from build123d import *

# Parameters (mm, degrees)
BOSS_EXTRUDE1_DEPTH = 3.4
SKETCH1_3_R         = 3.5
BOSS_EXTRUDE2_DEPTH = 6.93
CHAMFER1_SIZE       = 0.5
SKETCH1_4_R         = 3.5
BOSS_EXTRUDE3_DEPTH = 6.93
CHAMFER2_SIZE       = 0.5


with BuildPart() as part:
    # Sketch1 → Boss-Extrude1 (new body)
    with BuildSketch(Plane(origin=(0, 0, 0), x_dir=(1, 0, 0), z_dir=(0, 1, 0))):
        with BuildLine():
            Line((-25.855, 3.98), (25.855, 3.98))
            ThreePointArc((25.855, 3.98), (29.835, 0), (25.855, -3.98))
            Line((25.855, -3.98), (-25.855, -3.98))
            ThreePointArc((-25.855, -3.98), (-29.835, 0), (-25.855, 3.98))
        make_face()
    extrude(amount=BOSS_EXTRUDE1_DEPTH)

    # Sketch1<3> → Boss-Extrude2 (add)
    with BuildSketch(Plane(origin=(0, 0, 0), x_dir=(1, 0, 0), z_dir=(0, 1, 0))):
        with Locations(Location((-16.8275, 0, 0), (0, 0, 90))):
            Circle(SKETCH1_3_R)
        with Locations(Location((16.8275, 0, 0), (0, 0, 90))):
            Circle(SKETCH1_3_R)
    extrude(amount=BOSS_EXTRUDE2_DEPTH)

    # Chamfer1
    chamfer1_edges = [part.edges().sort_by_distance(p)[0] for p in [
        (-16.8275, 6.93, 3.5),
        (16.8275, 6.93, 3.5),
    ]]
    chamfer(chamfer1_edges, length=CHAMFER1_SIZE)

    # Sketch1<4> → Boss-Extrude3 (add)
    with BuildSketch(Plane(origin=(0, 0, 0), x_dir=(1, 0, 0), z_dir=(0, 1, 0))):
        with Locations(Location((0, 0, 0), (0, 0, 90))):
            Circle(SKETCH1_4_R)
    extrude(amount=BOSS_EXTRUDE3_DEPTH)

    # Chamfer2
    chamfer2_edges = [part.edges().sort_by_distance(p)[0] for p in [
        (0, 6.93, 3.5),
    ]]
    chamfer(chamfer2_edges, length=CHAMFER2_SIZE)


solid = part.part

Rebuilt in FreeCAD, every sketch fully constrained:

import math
import FreeCAD as App
import Part
import Sketcher
from FreeCAD import Vector
Q = App.Units.Quantity


def edges_at(feature, points):
    """Names of the edges that pass closest to the given points."""
    edges = feature.Shape.Edges
    near = lambda p: min(range(len(edges)), key=lambda i: edges[i].distToShape(Part.Vertex(*p))[0])
    return sorted({f"Edge{near(p) + 1}" for p in points})

doc = App.newDocument("Part")
body = doc.addObject("PartDesign::Body", "Body")

sketch1 = body.newObject("Sketcher::SketchObject", "Sketch")
sketch1.AttachmentSupport = (doc.getObject("XZ_Plane"), [""])
sketch1.MapMode = "FlatFace"
sketch1.addGeometry([
    Part.LineSegment(Vector(25.9, -4, 0), Vector(-25.9, -4, 0)),
    Part.ArcOfCircle(Part.Circle(Vector(-25.9, 0, 0), Vector(0, 0, 1), 4), math.radians(90), math.radians(270)),
    Part.LineSegment(Vector(-25.9, 4, 0), Vector(25.9, 4, 0)),
    Part.ArcOfCircle(Part.Circle(Vector(25.9, 0, 0), Vector(0, 0, 1), 4), math.radians(-90), math.radians(90)),
], False)
sketch1.addConstraint([
    Sketcher.Constraint("Tangent", 0, 2, 1, 2),
    Sketcher.Constraint("Tangent", 1, 1, 2, 1),
    Sketcher.Constraint("Tangent", 2, 2, 3, 2),
    Sketcher.Constraint("Tangent", 3, 1, 0, 1),
    Sketcher.Constraint("Horizontal", 0),
    Sketcher.Constraint("Horizontal", 2),
    Sketcher.Constraint("Symmetric", 1, 3, 3, 3, -1, 1),
    Sketcher.Constraint("Radius", 1, Q("3.98 mm")),
    Sketcher.Constraint("DistanceX", 0, 2, 0, 1, Q("51.71 mm")),
])
pad1 = body.newObject("PartDesign::Pad", "Pad")
pad1.Profile = sketch1
pad1.Length = 3.4
pad1.Reversed = True

sketch2 = body.newObject("Sketcher::SketchObject", "Sketch001")
sketch2.AttachmentSupport = (doc.getObject("XZ_Plane"), [""])
sketch2.MapMode = "FlatFace"
sketch2.addGeometry([
    Part.Circle(Vector(-16.8, 0, 0), Vector(0, 0, 1), 3.5),
    Part.Circle(Vector(16.8, 0, 0), Vector(0, 0, 1), 3.5),
], False)
sketch2.addConstraint([
    Sketcher.Constraint("Equal", 0, 1),
    Sketcher.Constraint("Symmetric", 0, 3, 1, 3, -1, 1),
    Sketcher.Constraint("PointOnObject", 0, 3, -1),
    Sketcher.Constraint("Diameter", 0, Q("7 mm")),
    Sketcher.Constraint("DistanceX", 0, 3, 1, 3, Q("33.655 mm")),
])
pad2 = body.newObject("PartDesign::Pad", "Pad001")
pad2.Profile = sketch2
pad2.Length = 6.93
pad2.Reversed = True
doc.recompute()

chamfer = body.newObject("PartDesign::Chamfer", "Chamfer")
chamfer.Base = (pad2, edges_at(pad2, [(-16.828, 6.93, 3.5), (16.828, 6.93, 3.5)]))
chamfer.Size = 0.5

sketch3 = body.newObject("Sketcher::SketchObject", "Sketch002")
sketch3.AttachmentSupport = (doc.getObject("XZ_Plane"), [""])
sketch3.MapMode = "FlatFace"
sketch3.addGeometry(Part.Circle(Vector(0, 0, 0), Vector(0, 0, 1), 3.5), False)
sketch3.addConstraint([
    Sketcher.Constraint("Coincident", 0, 3, -1, 1),
    Sketcher.Constraint("Diameter", 0, Q("7 mm")),
])
pad3 = body.newObject("PartDesign::Pad", "Pad002")
pad3.Profile = sketch3
pad3.Length = 6.93
pad3.Reversed = True
doc.recompute()

chamfer2 = body.newObject("PartDesign::Chamfer", "Chamfer001")
chamfer2.Base = (pad3, edges_at(pad3, [(0, 6.93, 3.5)]))
chamfer2.Size = 0.5

doc.recompute()
